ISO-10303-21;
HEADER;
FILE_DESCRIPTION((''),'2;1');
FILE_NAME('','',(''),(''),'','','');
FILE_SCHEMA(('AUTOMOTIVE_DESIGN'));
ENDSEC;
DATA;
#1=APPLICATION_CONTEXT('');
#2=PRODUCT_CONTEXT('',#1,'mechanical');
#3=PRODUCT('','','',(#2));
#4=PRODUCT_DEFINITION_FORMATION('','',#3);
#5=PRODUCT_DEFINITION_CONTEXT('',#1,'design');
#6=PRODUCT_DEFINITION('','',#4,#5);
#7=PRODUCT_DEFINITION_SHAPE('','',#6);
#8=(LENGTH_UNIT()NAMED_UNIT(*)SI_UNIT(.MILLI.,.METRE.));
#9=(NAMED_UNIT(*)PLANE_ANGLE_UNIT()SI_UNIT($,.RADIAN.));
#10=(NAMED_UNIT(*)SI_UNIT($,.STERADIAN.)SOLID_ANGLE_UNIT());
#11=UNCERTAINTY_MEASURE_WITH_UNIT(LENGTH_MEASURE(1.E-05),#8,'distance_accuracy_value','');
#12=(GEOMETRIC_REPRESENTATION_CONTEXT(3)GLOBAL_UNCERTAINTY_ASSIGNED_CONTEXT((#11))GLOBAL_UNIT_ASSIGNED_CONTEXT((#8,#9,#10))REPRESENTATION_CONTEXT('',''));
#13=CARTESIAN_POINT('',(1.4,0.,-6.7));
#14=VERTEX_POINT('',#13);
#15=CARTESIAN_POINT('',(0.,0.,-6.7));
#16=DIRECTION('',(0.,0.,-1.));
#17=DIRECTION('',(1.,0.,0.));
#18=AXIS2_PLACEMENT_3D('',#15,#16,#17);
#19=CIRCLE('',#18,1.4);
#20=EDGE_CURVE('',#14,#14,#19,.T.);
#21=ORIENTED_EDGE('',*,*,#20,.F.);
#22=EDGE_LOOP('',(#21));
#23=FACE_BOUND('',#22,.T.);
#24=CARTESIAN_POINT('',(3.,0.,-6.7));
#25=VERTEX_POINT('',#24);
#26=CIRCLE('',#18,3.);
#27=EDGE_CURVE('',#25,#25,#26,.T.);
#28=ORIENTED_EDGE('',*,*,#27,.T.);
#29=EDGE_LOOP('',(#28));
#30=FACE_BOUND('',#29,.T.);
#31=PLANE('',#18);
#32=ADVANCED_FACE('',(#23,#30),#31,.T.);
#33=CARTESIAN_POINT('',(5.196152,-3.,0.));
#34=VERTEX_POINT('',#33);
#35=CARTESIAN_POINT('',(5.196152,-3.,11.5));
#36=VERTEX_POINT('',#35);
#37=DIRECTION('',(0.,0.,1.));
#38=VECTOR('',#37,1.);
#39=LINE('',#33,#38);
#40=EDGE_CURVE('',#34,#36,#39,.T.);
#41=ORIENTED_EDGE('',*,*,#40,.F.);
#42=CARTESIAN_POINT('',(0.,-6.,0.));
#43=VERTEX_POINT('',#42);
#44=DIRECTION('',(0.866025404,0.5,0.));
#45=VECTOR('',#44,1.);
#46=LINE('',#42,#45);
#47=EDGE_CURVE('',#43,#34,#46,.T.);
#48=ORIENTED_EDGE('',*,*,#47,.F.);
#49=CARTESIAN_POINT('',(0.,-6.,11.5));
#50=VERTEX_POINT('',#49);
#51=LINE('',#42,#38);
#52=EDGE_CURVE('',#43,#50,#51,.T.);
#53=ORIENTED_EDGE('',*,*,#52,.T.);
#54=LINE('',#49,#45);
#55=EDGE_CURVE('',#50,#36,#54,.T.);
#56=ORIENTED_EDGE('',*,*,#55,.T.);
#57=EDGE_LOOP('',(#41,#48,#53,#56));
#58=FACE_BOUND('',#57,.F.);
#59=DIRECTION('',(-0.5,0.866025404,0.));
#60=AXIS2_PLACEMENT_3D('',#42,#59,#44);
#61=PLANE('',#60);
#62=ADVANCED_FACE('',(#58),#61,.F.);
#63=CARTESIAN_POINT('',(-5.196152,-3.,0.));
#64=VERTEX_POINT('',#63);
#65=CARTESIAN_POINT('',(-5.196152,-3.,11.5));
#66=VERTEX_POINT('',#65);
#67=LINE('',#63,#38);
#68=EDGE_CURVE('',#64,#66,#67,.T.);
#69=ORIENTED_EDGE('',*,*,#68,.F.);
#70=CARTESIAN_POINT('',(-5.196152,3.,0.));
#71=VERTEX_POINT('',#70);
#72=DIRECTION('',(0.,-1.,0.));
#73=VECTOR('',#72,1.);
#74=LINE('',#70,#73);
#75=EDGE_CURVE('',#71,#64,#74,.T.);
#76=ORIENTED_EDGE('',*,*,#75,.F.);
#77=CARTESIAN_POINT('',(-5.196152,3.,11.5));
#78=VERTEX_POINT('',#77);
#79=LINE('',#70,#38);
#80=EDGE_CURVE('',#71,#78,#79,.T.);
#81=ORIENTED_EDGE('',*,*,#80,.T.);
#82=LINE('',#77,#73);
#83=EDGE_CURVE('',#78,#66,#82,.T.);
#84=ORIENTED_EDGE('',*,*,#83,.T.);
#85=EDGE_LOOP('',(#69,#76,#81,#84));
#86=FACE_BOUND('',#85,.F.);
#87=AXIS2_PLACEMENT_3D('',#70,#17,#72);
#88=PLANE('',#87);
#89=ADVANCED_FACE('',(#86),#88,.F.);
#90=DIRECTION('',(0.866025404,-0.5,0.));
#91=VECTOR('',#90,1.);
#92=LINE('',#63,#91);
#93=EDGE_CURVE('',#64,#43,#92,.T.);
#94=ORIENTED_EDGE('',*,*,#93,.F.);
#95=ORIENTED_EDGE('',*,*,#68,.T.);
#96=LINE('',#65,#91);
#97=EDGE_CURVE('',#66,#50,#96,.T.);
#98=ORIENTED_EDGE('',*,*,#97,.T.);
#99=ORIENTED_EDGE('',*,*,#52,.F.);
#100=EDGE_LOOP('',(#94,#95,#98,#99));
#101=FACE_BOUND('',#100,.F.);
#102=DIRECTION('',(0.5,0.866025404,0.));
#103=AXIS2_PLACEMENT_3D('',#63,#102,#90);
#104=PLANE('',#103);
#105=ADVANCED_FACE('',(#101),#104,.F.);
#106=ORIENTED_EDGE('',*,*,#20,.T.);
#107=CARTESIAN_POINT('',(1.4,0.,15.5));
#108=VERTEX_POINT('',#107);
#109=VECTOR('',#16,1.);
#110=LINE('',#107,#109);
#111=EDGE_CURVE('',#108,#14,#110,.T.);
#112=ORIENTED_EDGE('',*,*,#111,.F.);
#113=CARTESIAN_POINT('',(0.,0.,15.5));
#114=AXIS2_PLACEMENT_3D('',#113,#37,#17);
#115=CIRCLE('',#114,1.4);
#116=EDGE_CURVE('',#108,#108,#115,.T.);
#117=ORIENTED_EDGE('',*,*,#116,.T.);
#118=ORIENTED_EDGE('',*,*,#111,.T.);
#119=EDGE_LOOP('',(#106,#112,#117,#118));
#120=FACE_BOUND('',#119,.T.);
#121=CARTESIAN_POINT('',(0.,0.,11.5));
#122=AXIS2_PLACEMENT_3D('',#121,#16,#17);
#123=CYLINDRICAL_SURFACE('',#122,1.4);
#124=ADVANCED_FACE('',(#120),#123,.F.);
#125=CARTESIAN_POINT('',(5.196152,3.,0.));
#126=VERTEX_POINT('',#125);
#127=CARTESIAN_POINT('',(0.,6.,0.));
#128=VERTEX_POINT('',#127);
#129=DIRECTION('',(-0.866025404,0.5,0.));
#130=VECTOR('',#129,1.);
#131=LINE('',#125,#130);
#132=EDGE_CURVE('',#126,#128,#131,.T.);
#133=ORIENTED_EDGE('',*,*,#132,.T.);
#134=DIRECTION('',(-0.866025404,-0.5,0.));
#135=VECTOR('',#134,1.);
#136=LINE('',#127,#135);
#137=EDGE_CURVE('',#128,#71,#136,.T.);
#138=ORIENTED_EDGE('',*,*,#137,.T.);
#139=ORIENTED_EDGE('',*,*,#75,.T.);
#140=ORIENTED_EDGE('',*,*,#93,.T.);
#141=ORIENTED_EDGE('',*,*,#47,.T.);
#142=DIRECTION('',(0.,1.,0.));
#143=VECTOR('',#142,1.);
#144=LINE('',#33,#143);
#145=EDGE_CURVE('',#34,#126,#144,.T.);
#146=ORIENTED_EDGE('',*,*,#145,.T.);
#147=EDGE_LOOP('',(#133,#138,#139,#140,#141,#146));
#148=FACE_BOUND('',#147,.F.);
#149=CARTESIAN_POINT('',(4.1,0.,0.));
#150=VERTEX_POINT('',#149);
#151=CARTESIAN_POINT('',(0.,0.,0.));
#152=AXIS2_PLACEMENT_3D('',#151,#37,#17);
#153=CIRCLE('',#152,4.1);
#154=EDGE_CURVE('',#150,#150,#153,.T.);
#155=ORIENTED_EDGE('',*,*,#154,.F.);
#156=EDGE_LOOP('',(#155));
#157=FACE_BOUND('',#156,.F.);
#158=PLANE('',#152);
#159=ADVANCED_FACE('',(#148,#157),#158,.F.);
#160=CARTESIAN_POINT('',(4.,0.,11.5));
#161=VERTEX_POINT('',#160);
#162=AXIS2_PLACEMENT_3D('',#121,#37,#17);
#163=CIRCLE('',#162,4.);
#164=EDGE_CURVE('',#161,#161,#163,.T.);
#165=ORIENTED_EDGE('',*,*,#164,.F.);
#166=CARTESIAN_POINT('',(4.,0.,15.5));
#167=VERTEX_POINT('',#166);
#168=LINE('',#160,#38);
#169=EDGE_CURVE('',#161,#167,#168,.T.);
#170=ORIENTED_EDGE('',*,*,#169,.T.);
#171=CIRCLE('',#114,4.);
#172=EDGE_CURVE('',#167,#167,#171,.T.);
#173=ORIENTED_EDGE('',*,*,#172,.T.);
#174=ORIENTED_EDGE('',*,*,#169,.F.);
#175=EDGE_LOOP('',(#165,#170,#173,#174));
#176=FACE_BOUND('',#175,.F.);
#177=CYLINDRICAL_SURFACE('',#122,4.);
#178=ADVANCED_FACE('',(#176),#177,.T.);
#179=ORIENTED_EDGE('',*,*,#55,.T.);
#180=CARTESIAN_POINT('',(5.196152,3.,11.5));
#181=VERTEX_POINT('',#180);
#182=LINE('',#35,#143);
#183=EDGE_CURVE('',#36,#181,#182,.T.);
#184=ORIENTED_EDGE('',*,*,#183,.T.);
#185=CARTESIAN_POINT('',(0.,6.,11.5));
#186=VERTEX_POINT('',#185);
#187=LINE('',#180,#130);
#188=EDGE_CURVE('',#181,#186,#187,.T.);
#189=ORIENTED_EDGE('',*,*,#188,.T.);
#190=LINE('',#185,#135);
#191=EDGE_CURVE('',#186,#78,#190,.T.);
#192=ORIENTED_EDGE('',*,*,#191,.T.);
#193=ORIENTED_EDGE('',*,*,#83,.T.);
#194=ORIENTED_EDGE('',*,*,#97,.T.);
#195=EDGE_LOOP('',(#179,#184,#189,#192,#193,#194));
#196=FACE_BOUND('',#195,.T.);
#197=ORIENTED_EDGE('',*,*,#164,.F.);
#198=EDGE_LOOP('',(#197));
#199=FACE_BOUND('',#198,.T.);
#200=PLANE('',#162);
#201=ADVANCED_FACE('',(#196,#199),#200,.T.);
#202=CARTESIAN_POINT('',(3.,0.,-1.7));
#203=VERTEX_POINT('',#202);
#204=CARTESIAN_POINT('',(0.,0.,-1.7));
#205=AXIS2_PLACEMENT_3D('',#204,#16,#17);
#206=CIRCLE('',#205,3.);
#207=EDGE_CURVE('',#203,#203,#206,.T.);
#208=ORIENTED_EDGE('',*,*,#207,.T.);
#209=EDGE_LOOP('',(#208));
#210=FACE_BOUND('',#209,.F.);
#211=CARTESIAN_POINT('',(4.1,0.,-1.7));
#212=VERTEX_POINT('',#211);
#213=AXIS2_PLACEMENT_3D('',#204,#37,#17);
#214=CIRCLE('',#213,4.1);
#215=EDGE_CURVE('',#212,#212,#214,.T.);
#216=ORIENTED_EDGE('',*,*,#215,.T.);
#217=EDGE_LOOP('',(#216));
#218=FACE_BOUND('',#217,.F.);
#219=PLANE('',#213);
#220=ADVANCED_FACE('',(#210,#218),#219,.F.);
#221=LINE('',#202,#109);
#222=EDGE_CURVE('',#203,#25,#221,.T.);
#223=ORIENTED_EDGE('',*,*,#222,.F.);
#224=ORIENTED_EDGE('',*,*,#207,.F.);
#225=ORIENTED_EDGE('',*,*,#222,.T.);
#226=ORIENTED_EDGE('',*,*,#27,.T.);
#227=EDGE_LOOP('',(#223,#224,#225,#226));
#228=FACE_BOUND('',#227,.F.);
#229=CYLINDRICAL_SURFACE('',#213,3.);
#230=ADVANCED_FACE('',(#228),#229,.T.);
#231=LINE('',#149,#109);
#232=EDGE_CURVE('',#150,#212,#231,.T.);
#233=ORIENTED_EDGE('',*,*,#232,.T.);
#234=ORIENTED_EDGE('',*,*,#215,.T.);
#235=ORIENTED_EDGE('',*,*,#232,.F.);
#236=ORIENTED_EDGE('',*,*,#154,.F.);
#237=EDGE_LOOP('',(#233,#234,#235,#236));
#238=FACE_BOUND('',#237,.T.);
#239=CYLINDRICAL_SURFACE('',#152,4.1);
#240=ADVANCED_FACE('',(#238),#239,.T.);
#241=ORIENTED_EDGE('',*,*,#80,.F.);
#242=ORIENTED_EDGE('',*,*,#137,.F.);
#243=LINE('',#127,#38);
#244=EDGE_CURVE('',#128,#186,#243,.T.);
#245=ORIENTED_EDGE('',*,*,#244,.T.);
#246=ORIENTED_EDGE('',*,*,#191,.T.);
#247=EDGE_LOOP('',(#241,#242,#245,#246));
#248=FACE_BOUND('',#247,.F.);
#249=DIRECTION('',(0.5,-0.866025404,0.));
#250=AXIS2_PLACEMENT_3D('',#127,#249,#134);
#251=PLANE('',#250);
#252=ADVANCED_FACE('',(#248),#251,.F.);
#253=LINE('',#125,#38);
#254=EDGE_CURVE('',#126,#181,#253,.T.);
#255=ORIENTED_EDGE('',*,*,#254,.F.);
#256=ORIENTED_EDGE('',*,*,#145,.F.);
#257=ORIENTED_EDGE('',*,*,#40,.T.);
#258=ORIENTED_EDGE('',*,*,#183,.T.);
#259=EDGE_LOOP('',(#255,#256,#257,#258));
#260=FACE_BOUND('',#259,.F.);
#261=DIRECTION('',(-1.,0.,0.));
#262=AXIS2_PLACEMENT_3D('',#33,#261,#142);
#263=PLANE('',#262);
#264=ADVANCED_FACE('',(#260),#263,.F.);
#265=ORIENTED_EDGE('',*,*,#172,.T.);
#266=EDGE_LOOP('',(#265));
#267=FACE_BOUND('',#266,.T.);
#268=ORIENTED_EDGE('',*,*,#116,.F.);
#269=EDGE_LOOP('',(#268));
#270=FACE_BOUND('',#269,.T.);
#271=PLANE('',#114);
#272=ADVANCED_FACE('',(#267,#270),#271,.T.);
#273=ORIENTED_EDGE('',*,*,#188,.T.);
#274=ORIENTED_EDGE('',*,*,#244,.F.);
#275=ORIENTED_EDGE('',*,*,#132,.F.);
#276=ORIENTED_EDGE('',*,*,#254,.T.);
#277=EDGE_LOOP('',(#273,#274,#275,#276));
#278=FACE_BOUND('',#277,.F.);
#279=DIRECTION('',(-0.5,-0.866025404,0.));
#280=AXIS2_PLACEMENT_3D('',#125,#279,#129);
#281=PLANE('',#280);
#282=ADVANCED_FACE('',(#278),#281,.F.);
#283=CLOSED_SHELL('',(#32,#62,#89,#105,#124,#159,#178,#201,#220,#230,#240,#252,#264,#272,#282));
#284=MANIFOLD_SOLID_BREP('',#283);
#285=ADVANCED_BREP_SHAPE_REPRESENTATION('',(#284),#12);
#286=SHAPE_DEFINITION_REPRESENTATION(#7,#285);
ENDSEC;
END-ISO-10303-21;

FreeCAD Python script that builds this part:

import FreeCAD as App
import Part
import Sketcher
Q = App.Units.Quantity


def add_polygon(sketch, points):
    """Adds a closed chain of lines whose ends are joined by coincident constraints."""
    first, n = sketch.GeometryCount, len(points)
    for a, b in zip(points, points[1:] + points[:1]):
        sketch.addGeometry(Part.LineSegment(App.Vector(*a, 0), App.Vector(*b, 0)), False)
    for i in range(n):
        sketch.addConstraint(Sketcher.Constraint("Coincident", first + i, 2, first + (i + 1) % n, 1))

doc = App.newDocument("Part")
body = doc.addObject("PartDesign::Body", "Body")

# Sketch on XY plane
sketch1 = body.newObject("Sketcher::SketchObject", "Sketch")
sketch1.AttachmentSupport = (doc.getObject("XY_Plane"), [""])
sketch1.MapMode = "FlatFace"
sketch1.addGeometry([
    Part.Circle(App.Vector(0, 0, 0), App.Vector(0, 0, 1), 4.1),
    Part.Circle(App.Vector(0, 0, 0), App.Vector(0, 0, 1), 1.4),
], False)
sketch1.addConstraint([
    Sketcher.Constraint("Coincident", 0, 3, -1, 1),
    Sketcher.Constraint("Coincident", 1, 3, -1, 1),
    Sketcher.Constraint("Diameter", 0, 8.2),
    Sketcher.Constraint("Diameter", 1, 2.8),
])
pad1 = body.newObject("PartDesign::Pad", "Pad")
pad1.Profile = sketch1
pad1.Length = 1.7
pad1.Reversed = True

# Sketch on XY plane
sketch2 = body.newObject("Sketcher::SketchObject", "Sketch001")
sketch2.AttachmentSupport = (doc.getObject("XY_Plane"), [""])
sketch2.MapMode = "FlatFace"
sketch2.AttachmentOffset = App.Placement(App.Vector(0, 0, -1.7), App.Rotation())
sketch2.addGeometry([
    Part.Circle(App.Vector(0, 0, 0), App.Vector(0, 0, 1), 3),
    Part.Circle(App.Vector(0, 0, 0), App.Vector(0, 0, 1), 1.4),
], False)
sketch2.addConstraint([
    Sketcher.Constraint("Coincident", 0, 3, -1, 1),
    Sketcher.Constraint("Coincident", 1, 3, -1, 1),
    Sketcher.Constraint("Diameter", 0, 6.0),
    Sketcher.Constraint("Diameter", 1, 2.8),
])
pad2 = body.newObject("PartDesign::Pad", "Pad001")
pad2.Profile = sketch2
pad2.Length = 5
pad2.Reversed = True

# Sketch on XY plane
sketch3 = body.newObject("Sketcher::SketchObject", "Sketch002")
sketch3.AttachmentSupport = (doc.getObject("XY_Plane"), [""])
sketch3.MapMode = "FlatFace"
add_polygon(sketch3, [(5.2, -3), (5.2, 3), (0, 6), (-5.2, 3), (-5.2, -3), (0, -6)])  # lines 0-5
sketch3.addGeometry(Part.Circle(App.Vector(0, 0, 0), App.Vector(0, 0, 1), 1.4), False)  # 6
sketch3.addConstraint([
    Sketcher.Constraint("Vertical", 0),
    Sketcher.Constraint("Vertical", 3),
    Sketcher.Constraint("Coincident", 6, 3, -1, 1),
    Sketcher.Constraint("Symmetric", 0, 2, 3, 2, -1, 1),
    Sketcher.Constraint("Symmetric", 1, 2, 4, 2, -1, 1),
    Sketcher.Constraint("PointOnObject", 1, 2, -2),
    Sketcher.Constraint("Parallel", 2, 5),
    Sketcher.Constraint("Horizontal", 0, 2, 2, 2),
    Sketcher.Constraint("Diameter", 6, 2.8),
    Sketcher.Constraint("DistanceY", 0, 1, 0, 2, 6.0),
    Sketcher.Constraint("Angle", 1, Q("150 deg")),
    Sketcher.Constraint("Distance", 1, 6.0),
])
pad3 = body.newObject("PartDesign::Pad", "Pad002")
pad3.Profile = sketch3
pad3.Length = 11.5

# Sketch on XY plane
sketch4 = body.newObject("Sketcher::SketchObject", "Sketch003")
sketch4.AttachmentSupport = (doc.getObject("XY_Plane"), [""])
sketch4.MapMode = "FlatFace"
sketch4.AttachmentOffset = App.Placement(App.Vector(0, 0, 11.5), App.Rotation())
sketch4.addGeometry([
    Part.Circle(App.Vector(0, 0, 0), App.Vector(0, 0, 1), 4),
    Part.Circle(App.Vector(0, 0, 0), App.Vector(0, 0, 1), 1.4),
], False)
sketch4.addConstraint([
    Sketcher.Constraint("Coincident", 0, 3, -1, 1),
    Sketcher.Constraint("Coincident", 1, 3, -1, 1),
    Sketcher.Constraint("Diameter", 0, 8.0),
    Sketcher.Constraint("Diameter", 1, 2.8),
])
pad4 = body.newObject("PartDesign::Pad", "Pad003")
pad4.Profile = sketch4
pad4.Length = 4

doc.recompute()
